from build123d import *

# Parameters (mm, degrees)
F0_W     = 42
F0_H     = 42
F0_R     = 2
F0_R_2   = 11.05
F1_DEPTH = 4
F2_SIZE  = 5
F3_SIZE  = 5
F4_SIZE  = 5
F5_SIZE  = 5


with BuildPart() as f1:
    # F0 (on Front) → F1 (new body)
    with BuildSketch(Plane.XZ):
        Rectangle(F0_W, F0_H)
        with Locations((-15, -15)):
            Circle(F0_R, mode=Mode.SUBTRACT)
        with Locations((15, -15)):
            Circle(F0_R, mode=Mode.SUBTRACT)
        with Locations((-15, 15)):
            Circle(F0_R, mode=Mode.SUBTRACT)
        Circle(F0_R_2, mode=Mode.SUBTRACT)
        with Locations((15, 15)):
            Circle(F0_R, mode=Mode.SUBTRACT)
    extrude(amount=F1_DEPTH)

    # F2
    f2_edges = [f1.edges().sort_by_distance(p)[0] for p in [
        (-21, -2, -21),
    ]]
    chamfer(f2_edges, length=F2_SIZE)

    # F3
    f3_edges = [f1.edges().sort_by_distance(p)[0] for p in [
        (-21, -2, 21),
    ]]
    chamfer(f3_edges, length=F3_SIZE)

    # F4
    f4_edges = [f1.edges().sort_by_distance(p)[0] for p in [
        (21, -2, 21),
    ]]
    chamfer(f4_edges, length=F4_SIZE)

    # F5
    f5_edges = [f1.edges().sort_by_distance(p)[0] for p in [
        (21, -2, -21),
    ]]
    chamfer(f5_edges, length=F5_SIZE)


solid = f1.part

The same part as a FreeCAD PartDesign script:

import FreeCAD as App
import Part
import Sketcher

V = App.Vector
Q = App.Units.Quantity


def edges_at(feature, points):
    """Names of the edges that pass closest to the given points."""
    edges = feature.Shape.Edges
    near = lambda p: min(range(len(edges)), key=lambda i: edges[i].distToShape(Part.Vertex(*p))[0])
    return sorted({f"Edge{near(p) + 1}" for p in points})


def add_polygon(sketch, points):
    """Adds a closed chain of lines whose ends are joined by coincident constraints."""
    first, n = sketch.GeometryCount, len(points)
    for a, b in zip(points, points[1:] + points[:1]):
        sketch.addGeometry(Part.LineSegment(App.Vector(*a, 0), App.Vector(*b, 0)), False)
    for i in range(n):
        sketch.addConstraint(Sketcher.Constraint("Coincident", first + i, 2, first + (i + 1) % n, 1))

doc = App.newDocument("Part")
body = doc.addObject("PartDesign::Body", "Body")

# Sketch on XZ plane
sketch1 = body.newObject("Sketcher::SketchObject", "Sketch")
sketch1.AttachmentSupport = (doc.getObject("XZ_Plane"), [""])
sketch1.MapMode = "FlatFace"
add_polygon(sketch1, [(-21, 21), (-21, -21), (21, -21), (21, 21)])  # lines 0-3
sketch1.addGeometry(Part.Circle(V(-15, -15, 0), V(0, 0, 1), 2), False)  # 4
sketch1.addGeometry(Part.Circle(V(15, -15, 0), V(0, 0, 1), 2), False)  # 5
sketch1.addGeometry(Part.Circle(V(-15, 15, 0), V(0, 0, 1), 2), False)  # 6
sketch1.addGeometry(Part.Circle(V(0, 0, 0), V(0, 0, 1), 11.05), False)  # 7
sketch1.addGeometry(Part.Circle(V(15, 15, 0), V(0, 0, 1), 2), False)  # 8
sketch1.addConstraint(Sketcher.Constraint("Vertical", 0))
sketch1.addConstraint(Sketcher.Constraint("Horizontal", 1))
sketch1.addConstraint(Sketcher.Constraint("Vertical", 2))
sketch1.addConstraint(Sketcher.Constraint("Horizontal", 3))
sketch1.addConstraint(Sketcher.Constraint("Coincident", 7, 3, -1, 1))
sketch1.addConstraint(Sketcher.Constraint("Equal", 4, 5))
sketch1.addConstraint(Sketcher.Constraint("Equal", 5, 6))
sketch1.addConstraint(Sketcher.Constraint("Equal", 6, 8))
sketch1.addConstraint(Sketcher.Constraint("Symmetric", 5, 3, 6, 3, -1, 1))
sketch1.addConstraint(Sketcher.Constraint("Symmetric", 4, 3, 8, 3, -1, 1))
sketch1.addConstraint(Sketcher.Constraint("Symmetric", 0, 2, 2, 2, -1, 1))
sketch1.addConstraint(Sketcher.Constraint("Symmetric", 4, 3, 5, 3, -2))
sketch1.addConstraint(Sketcher.Constraint("Equal", 3, 0))
sketch1.addConstraint(Sketcher.Constraint("Diameter", 4, Q("4 mm")))
sketch1.addConstraint(Sketcher.Constraint("Diameter", 7, Q("22.1 mm")))
sketch1.addConstraint(Sketcher.Constraint("DistanceX", 1, 1, 1, 2, Q("42 mm")))
sketch1.addConstraint(Sketcher.Constraint("DistanceX", 4, 3, -1, 1, Q("15 mm")))
sketch1.addConstraint(Sketcher.Constraint("DistanceY", 4, 3, -1, 1, Q("15 mm")))
pad1 = body.newObject("PartDesign::Pad", "Pad")
pad1.Profile = sketch1
pad1.Length = 4
doc.recompute()

chamfer = body.newObject("PartDesign::Chamfer", "Chamfer")
chamfer.Base = (pad1, edges_at(pad1, [(-21, -2, -21)]))
chamfer.Size = 5
doc.recompute()

chamfer2 = body.newObject("PartDesign::Chamfer", "Chamfer001")
chamfer2.Base = (chamfer, edges_at(chamfer, [(-21, -2, 21)]))
chamfer2.Size = 5
doc.recompute()

chamfer3 = body.newObject("PartDesign::Chamfer", "Chamfer002")
chamfer3.Base = (chamfer2, edges_at(chamfer2, [(21, -2, 21)]))
chamfer3.Size = 5
doc.recompute()

chamfer4 = body.newObject("PartDesign::Chamfer", "Chamfer003")
chamfer4.Base = (chamfer3, edges_at(chamfer3, [(21, -2, -21)]))
chamfer4.Size = 5

doc.recompute()
